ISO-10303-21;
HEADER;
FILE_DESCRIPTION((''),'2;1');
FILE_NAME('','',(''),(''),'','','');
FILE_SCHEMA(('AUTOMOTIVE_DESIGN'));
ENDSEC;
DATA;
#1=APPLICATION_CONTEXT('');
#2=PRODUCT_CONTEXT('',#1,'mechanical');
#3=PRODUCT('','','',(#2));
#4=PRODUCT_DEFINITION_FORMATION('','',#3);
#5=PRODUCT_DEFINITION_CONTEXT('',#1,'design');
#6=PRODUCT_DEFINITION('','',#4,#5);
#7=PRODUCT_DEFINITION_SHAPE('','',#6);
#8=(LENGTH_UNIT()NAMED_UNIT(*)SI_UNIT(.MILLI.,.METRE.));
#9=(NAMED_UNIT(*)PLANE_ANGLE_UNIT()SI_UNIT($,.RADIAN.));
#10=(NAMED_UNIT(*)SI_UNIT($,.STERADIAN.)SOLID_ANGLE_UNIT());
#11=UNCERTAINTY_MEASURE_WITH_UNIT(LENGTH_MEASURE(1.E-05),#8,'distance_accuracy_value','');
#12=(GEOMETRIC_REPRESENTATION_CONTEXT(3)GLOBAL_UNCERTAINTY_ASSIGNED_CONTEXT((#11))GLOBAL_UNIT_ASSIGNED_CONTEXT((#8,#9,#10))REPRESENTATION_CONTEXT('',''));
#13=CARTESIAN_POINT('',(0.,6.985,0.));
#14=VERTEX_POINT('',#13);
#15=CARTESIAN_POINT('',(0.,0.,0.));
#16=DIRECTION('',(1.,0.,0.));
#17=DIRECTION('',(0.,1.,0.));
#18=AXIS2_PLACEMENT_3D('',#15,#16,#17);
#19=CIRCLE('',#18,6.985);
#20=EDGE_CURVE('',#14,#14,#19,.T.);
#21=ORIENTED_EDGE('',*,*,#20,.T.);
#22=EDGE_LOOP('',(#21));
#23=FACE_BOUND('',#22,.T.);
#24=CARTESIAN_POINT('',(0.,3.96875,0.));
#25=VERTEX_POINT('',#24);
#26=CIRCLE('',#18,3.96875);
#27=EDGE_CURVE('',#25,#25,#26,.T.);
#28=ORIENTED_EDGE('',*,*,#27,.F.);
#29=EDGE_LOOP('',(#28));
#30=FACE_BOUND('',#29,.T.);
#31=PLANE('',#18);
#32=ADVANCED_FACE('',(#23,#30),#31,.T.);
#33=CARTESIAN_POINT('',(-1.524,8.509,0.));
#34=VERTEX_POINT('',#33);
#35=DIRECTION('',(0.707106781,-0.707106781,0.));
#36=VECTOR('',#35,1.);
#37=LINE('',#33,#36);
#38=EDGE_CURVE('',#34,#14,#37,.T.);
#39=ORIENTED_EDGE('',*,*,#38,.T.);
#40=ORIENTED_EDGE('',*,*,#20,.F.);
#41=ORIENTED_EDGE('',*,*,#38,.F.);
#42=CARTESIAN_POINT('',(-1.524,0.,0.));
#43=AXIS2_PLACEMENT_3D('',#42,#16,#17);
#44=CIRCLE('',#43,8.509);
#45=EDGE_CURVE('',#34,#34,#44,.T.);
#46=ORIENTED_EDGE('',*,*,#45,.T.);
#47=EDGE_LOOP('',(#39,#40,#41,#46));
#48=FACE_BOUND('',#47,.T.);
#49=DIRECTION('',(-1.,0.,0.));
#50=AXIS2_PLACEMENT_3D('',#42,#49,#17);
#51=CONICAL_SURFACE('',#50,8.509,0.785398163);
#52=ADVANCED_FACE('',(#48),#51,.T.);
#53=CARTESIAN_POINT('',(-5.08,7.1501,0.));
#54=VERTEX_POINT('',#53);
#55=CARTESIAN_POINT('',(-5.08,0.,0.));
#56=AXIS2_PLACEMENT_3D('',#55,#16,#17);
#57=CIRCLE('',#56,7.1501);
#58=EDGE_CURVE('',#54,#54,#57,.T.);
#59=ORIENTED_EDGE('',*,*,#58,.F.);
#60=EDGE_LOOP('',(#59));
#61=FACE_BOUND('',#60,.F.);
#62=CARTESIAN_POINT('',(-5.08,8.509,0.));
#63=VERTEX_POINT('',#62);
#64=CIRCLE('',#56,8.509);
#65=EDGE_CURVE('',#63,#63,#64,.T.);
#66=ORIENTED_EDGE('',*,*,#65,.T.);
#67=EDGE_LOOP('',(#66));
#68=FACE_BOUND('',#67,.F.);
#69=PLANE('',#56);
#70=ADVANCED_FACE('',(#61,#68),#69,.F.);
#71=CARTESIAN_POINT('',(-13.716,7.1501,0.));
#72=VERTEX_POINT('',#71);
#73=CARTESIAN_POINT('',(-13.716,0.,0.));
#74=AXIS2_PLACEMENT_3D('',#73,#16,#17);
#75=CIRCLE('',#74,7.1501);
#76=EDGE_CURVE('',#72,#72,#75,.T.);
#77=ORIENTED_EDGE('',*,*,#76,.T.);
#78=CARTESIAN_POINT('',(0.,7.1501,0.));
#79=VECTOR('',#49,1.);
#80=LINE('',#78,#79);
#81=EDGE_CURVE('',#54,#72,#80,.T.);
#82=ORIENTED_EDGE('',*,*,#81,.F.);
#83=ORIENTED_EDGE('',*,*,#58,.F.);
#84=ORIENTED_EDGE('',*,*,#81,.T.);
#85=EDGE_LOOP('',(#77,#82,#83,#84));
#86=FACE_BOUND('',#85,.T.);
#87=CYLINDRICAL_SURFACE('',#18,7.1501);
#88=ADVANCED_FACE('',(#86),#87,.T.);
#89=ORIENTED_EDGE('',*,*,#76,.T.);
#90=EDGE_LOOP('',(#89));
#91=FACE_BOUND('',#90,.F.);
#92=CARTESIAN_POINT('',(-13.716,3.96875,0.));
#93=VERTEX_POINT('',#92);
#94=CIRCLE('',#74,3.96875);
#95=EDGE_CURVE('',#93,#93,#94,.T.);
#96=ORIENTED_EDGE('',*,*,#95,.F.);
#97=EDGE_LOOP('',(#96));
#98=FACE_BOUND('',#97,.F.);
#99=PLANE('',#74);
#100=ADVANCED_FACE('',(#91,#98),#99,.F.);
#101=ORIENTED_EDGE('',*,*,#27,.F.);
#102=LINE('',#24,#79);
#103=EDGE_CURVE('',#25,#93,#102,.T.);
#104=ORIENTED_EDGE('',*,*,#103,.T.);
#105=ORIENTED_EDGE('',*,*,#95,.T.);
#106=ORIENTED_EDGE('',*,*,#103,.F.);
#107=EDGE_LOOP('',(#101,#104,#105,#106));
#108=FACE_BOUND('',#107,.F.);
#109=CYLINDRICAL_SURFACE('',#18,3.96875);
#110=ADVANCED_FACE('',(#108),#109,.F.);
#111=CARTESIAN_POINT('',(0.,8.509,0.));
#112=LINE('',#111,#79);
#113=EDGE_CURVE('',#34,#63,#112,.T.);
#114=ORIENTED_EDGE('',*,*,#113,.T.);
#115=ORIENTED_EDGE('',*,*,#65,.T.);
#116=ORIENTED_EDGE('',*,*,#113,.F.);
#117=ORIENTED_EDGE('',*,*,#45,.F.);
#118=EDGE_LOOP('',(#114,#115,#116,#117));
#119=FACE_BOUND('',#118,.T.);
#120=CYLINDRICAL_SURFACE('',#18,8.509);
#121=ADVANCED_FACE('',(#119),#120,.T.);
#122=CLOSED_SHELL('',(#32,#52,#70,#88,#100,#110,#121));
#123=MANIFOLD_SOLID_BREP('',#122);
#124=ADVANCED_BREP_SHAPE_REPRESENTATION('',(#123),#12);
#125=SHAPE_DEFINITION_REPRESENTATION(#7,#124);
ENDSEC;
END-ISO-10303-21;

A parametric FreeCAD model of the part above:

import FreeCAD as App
import Part
import Sketcher

V = App.Vector
Q = App.Units.Quantity


def edges_at(feature, points):
    """Names of the edges that pass closest to the given points."""
    edges = feature.Shape.Edges
    near = lambda p: min(range(len(edges)), key=lambda i: edges[i].distToShape(Part.Vertex(*p))[0])
    return sorted({f"Edge{near(p) + 1}" for p in points})

doc = App.newDocument("Part")
body = doc.addObject("PartDesign::Body", "Body")

sketch1 = body.newObject("Sketcher::SketchObject", "Sketch")
sketch1.AttachmentSupport = (doc.getObject("YZ_Plane"), [""])
sketch1.MapMode = "FlatFace"
sketch1.addGeometry(Part.Circle(V(0, 0, 0), V(0, 0, 1), 7.2), False)
sketch1.addGeometry(Part.Circle(V(0, 0, 0), V(0, 0, 1), 4), False)
sketch1.addConstraint(Sketcher.Constraint("Coincident", 0, 3, -1, 1))
sketch1.addConstraint(Sketcher.Constraint("Coincident", 1, 3, -1, 1))
sketch1.addConstraint(Sketcher.Constraint("Diameter", 0, Q("0.563 in")))
sketch1.addConstraint(Sketcher.Constraint("Diameter", 1, Q("0.3125 in")))
pad1 = body.newObject("PartDesign::Pad", "Pad")
pad1.Profile = sketch1
pad1.Length = Q("0.54 in")
pad1.Reversed = True

sketch2 = body.newObject("Sketcher::SketchObject", "Sketch001")
sketch2.AttachmentSupport = (doc.getObject("YZ_Plane"), [""])
sketch2.MapMode = "FlatFace"
sketch2.addGeometry(Part.Circle(V(0, 0, 0), V(0, 0, 1), 9), False)
sketch2.addGeometry(Part.Circle(V(0, 0, 0), V(0, 0, 1), 7), False)
sketch2.addConstraint(Sketcher.Constraint("Coincident", 0, 3, -1, 1))
sketch2.addConstraint(Sketcher.Constraint("Coincident", 1, 3, -1, 1))
sketch2.addConstraint(Sketcher.Constraint("Diameter", 0, Q("0.67 in")))
sketch2.addConstraint(Sketcher.Constraint("Diameter", 1, Q("0.563 in")))
pad2 = body.newObject("PartDesign::Pad", "Pad001")
pad2.Profile = sketch2
pad2.Length = Q("0.2 in")
pad2.Reversed = True
doc.recompute()

chamfer = body.newObject("PartDesign::Chamfer", "Chamfer")
chamfer.Base = (pad2, edges_at(pad2, [(0, -8.509, 0)]))
chamfer.Size = Q("0.06 in")

doc.recompute()
